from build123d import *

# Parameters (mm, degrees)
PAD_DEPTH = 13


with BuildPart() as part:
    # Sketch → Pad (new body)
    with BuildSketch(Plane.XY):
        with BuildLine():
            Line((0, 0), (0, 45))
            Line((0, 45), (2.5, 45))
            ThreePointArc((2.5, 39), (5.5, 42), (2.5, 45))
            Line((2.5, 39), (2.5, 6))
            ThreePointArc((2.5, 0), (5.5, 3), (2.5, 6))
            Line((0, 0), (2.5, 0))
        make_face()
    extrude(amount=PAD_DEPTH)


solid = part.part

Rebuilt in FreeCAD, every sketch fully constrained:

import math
import FreeCAD as App
import Part
import Sketcher
Q = App.Units.Quantity

doc = App.newDocument("Part")
body = doc.addObject("PartDesign::Body", "Body")

sketch1 = body.newObject("Sketcher::SketchObject", "Sketch")
sketch1.AttachmentSupport = (doc.getObject("XY_Plane"), [""])
sketch1.MapMode = "FlatFace"
sketch1.addGeometry(Part.LineSegment(App.Vector(0, 45, 0), App.Vector(0, 0, 0)), False)
sketch1.addGeometry(Part.LineSegment(App.Vector(0, 0, 0), App.Vector(2.5, 0, 0)), False)
sketch1.addGeometry(Part.ArcOfCircle(Part.Circle(App.Vector(2.5, 3, 0), App.Vector(0, 0, 1), 3), math.radians(-90), math.radians(90)), False)
sketch1.addGeometry(Part.LineSegment(App.Vector(2.5, 6, 0), App.Vector(2.5, 39, 0)), False)
sketch1.addGeometry(Part.ArcOfCircle(Part.Circle(App.Vector(2.5, 42, 0), App.Vector(0, 0, 1), 3), math.radians(-90), math.radians(90)), False)
sketch1.addGeometry(Part.LineSegment(App.Vector(2.5, 45, 0), App.Vector(0, 45, 0)), False)
sketch1.addConstraint(Sketcher.Constraint("Coincident", 0, 2, 1, 1))
sketch1.addConstraint(Sketcher.Constraint("Tangent", 1, 2, 2, 1))
sketch1.addConstraint(Sketcher.Constraint("Coincident", 2, 2, 3, 1))
sketch1.addConstraint(Sketcher.Constraint("Coincident", 3, 2, 4, 1))
sketch1.addConstraint(Sketcher.Constraint("Tangent", 4, 2, 5, 1))
sketch1.addConstraint(Sketcher.Constraint("Coincident", 5, 2, 0, 1))
sketch1.addConstraint(Sketcher.Constraint("Vertical", 0))
sketch1.addConstraint(Sketcher.Constraint("Horizontal", 1))
sketch1.addConstraint(Sketcher.Constraint("Vertical", 3))
sketch1.addConstraint(Sketcher.Constraint("Horizontal", 5))
sketch1.addConstraint(Sketcher.Constraint("Coincident", 0, 2, -1, 1))
sketch1.addConstraint(Sketcher.Constraint("Equal", 2, 4))
sketch1.addConstraint(Sketcher.Constraint("Vertical", 2, 3, 4, 3))
sketch1.addConstraint(Sketcher.Constraint("Vertical", 1, 2, 2, 2))
sketch1.addConstraint(Sketcher.Constraint("Radius", 2, Q("3 mm")))
sketch1.addConstraint(Sketcher.Constraint("DistanceY", 0, 2, 0, 1, Q("45 mm")))
sketch1.addConstraint(Sketcher.Constraint("DistanceX", 1, 1, 1, 2, Q("2.5 mm")))
pad1 = body.newObject("PartDesign::Pad", "Pad")
pad1.Profile = sketch1
pad1.Length = 13

doc.recompute()
